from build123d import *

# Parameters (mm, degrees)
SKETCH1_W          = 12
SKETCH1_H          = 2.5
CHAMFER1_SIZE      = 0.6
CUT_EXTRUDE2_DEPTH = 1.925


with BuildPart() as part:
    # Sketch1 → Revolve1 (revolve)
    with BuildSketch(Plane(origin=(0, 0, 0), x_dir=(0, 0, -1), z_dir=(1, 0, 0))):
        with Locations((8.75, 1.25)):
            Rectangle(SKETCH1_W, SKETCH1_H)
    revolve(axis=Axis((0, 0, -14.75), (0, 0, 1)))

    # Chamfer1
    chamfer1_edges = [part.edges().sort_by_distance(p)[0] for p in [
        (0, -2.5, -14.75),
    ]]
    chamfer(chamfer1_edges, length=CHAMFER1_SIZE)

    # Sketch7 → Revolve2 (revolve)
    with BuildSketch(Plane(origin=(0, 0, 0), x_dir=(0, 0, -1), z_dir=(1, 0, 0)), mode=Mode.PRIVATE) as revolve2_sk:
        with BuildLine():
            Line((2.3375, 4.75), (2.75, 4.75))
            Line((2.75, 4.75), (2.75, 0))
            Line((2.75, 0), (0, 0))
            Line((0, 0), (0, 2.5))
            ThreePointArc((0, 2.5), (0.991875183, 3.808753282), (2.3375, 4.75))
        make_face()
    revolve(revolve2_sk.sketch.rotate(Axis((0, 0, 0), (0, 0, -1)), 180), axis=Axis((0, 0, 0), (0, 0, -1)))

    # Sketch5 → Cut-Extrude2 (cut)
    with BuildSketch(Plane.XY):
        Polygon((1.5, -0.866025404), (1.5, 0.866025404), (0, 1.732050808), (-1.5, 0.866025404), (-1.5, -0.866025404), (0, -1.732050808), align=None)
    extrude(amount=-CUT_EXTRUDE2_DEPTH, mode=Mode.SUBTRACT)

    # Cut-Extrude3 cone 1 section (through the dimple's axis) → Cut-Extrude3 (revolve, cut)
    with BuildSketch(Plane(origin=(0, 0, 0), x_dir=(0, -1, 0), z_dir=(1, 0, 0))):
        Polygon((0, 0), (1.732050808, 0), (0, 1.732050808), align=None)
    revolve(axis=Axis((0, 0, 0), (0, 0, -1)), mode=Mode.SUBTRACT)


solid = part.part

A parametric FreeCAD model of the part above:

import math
import FreeCAD as App
import Part
import Sketcher
Q = App.Units.Quantity


def edges_at(feature, points):
    """Names of the edges that pass closest to the given points."""
    edges = feature.Shape.Edges
    near = lambda p: min(range(len(edges)), key=lambda i: edges[i].distToShape(Part.Vertex(*p))[0])
    return sorted({f"Edge{near(p) + 1}" for p in points})


def add_polygon(sketch, points):
    """Adds a closed chain of lines whose ends are joined by coincident constraints."""
    first, n = sketch.GeometryCount, len(points)
    for a, b in zip(points, points[1:] + points[:1]):
        sketch.addGeometry(Part.LineSegment(App.Vector(*a, 0), App.Vector(*b, 0)), False)
    for i in range(n):
        sketch.addConstraint(Sketcher.Constraint("Coincident", first + i, 2, first + (i + 1) % n, 1))

doc = App.newDocument("Part")
body = doc.addObject("PartDesign::Body", "Body")

# Sketch on YZ plane
sketch1 = body.newObject("Sketcher::SketchObject", "Sketch")
sketch1.AttachmentSupport = (doc.getObject("YZ_Plane"), [""])
sketch1.MapMode = "FlatFace"
add_polygon(sketch1, [(2.5, -2.75), (0, -2.75), (0, -14.75), (2.5, -14.75)])  # lines 0-3
sketch1.addConstraint([
    Sketcher.Constraint("Horizontal", 0),
    Sketcher.Constraint("Vertical", 1),
    Sketcher.Constraint("Horizontal", 2),
    Sketcher.Constraint("Vertical", 3),
    Sketcher.Constraint("PointOnObject", 0, 2, -2),
    Sketcher.Constraint("DistanceY", 1, 2, 1, 1, Q("12 mm")),
    Sketcher.Constraint("DistanceX", 0, 2, 0, 1, Q("2.5 mm")),
    Sketcher.Constraint("DistanceY", 0, 2, -1, 1, Q("2.75 mm")),
])
revolution = body.newObject("PartDesign::Revolution", "Revolution")
revolution.Profile = sketch1
revolution.ReferenceAxis = (sketch1, ["V_Axis"])
revolution.Angle = 360
doc.recompute()

chamfer = body.newObject("PartDesign::Chamfer", "Chamfer")
chamfer.Base = (revolution, edges_at(revolution, [(0, -2.5, -14.75)]))
chamfer.Size = 0.6

# Sketch on YZ plane
sketch2 = body.newObject("Sketcher::SketchObject", "Sketch001")
sketch2.AttachmentSupport = (doc.getObject("YZ_Plane"), [""])
sketch2.MapMode = "FlatFace"
sketch2.addGeometry([
    Part.LineSegment(App.Vector(4.75, -2.75, 0), App.Vector(4.75, -2.3375, 0)),  # 0
    Part.ArcOfCircle(Part.Circle(App.Vector(0, -4.658055, 0), App.Vector(0, 0, 1), 5.286537), math.radians(26.03726), math.radians(61.777335)),  # 1
    Part.LineSegment(App.Vector(2.5, 0, 0), App.Vector(0, 0, 0)),  # 2
    Part.LineSegment(App.Vector(0, 0, 0), App.Vector(0, -2.75, 0)),  # 3
    Part.LineSegment(App.Vector(0, -2.75, 0), App.Vector(4.75, -2.75, 0)),  # 4
], False)
sketch2.addConstraint([
    Sketcher.Constraint("Coincident", 0, 2, 1, 1),
    Sketcher.Constraint("Coincident", 1, 2, 2, 1),
    Sketcher.Constraint("Coincident", 2, 2, 3, 1),
    Sketcher.Constraint("Coincident", 3, 2, 4, 1),
    Sketcher.Constraint("Coincident", 4, 2, 0, 1),
    Sketcher.Constraint("Vertical", 0),
    Sketcher.Constraint("Horizontal", 2),
    Sketcher.Constraint("Vertical", 3),
    Sketcher.Constraint("Horizontal", 4),
    Sketcher.Constraint("Coincident", 2, 2, -1, 1),
    Sketcher.Constraint("PointOnObject", 1, 3, -2),
    Sketcher.Constraint("DistanceX", 2, 2, 2, 1, Q("2.5 mm")),
    Sketcher.Constraint("DistanceX", 4, 1, 4, 2, Q("4.75 mm")),
    Sketcher.Constraint("DistanceY", 3, 2, 3, 1, Q("2.75 mm")),
    Sketcher.Constraint("DistanceY", 0, 1, 0, 2, Q("0.4125 mm")),
])
revolution2 = body.newObject("PartDesign::Revolution", "Revolution001")
revolution2.Profile = sketch2
revolution2.ReferenceAxis = (sketch2, ["V_Axis"])
revolution2.Angle = 360

# Sketch on XY plane
sketch3 = body.newObject("Sketcher::SketchObject", "Sketch002")
sketch3.AttachmentSupport = (doc.getObject("XY_Plane"), [""])
sketch3.MapMode = "FlatFace"
add_polygon(sketch3, [(1.5, -0.866025), (1.5, 0.866025), (0, 1.732051), (-1.5, 0.866025), (-1.5, -0.866025), (0, -1.732051)])  # lines 0-5
sketch3.addConstraint([
    Sketcher.Constraint("Vertical", 0),
    Sketcher.Constraint("Vertical", 3),
    Sketcher.Constraint("Symmetric", 0, 2, 3, 2, -1, 1),
    Sketcher.Constraint("Symmetric", 1, 2, 4, 2, -1, 1),
    Sketcher.Constraint("PointOnObject", 1, 2, -2),
    Sketcher.Constraint("Parallel", 2, 5),
    Sketcher.Constraint("Horizontal", 0, 2, 2, 2),
    Sketcher.Constraint("Angle", 1, Q("150 deg")),
    Sketcher.Constraint("DistanceX", 2, 2, 0, 2, Q("3 mm")),
    Sketcher.Constraint("DistanceY", 0, 1, 0, 2, Q("1.732051 mm")),
])
pocket1 = body.newObject("PartDesign::Pocket", "Pocket")
pocket1.Profile = sketch3
pocket1.Length = 1.925

# Sketch on YZ plane
sketch4 = body.newObject("Sketcher::SketchObject", "Sketch003")
sketch4.AttachmentSupport = (doc.getObject("YZ_Plane"), [""])
sketch4.MapMode = "FlatFace"
add_polygon(sketch4, [(0, 0), (-1.732051, 0), (0, -1.732051)])  # lines 0-2
sketch4.addConstraint([
    Sketcher.Constraint("Horizontal", 0),
    Sketcher.Constraint("Vertical", 2),
    Sketcher.Constraint("Coincident", 2, 2, -1, 1),
    Sketcher.Constraint("Equal", 0, 2),
    Sketcher.Constraint("DistanceX", 0, 2, 0, 1, Q("1.732051 mm")),
])
groove = body.newObject("PartDesign::Groove", "Groove")
groove.Profile = sketch4
groove.ReferenceAxis = (sketch4, ["V_Axis"])
groove.Angle = 360

doc.recompute()
